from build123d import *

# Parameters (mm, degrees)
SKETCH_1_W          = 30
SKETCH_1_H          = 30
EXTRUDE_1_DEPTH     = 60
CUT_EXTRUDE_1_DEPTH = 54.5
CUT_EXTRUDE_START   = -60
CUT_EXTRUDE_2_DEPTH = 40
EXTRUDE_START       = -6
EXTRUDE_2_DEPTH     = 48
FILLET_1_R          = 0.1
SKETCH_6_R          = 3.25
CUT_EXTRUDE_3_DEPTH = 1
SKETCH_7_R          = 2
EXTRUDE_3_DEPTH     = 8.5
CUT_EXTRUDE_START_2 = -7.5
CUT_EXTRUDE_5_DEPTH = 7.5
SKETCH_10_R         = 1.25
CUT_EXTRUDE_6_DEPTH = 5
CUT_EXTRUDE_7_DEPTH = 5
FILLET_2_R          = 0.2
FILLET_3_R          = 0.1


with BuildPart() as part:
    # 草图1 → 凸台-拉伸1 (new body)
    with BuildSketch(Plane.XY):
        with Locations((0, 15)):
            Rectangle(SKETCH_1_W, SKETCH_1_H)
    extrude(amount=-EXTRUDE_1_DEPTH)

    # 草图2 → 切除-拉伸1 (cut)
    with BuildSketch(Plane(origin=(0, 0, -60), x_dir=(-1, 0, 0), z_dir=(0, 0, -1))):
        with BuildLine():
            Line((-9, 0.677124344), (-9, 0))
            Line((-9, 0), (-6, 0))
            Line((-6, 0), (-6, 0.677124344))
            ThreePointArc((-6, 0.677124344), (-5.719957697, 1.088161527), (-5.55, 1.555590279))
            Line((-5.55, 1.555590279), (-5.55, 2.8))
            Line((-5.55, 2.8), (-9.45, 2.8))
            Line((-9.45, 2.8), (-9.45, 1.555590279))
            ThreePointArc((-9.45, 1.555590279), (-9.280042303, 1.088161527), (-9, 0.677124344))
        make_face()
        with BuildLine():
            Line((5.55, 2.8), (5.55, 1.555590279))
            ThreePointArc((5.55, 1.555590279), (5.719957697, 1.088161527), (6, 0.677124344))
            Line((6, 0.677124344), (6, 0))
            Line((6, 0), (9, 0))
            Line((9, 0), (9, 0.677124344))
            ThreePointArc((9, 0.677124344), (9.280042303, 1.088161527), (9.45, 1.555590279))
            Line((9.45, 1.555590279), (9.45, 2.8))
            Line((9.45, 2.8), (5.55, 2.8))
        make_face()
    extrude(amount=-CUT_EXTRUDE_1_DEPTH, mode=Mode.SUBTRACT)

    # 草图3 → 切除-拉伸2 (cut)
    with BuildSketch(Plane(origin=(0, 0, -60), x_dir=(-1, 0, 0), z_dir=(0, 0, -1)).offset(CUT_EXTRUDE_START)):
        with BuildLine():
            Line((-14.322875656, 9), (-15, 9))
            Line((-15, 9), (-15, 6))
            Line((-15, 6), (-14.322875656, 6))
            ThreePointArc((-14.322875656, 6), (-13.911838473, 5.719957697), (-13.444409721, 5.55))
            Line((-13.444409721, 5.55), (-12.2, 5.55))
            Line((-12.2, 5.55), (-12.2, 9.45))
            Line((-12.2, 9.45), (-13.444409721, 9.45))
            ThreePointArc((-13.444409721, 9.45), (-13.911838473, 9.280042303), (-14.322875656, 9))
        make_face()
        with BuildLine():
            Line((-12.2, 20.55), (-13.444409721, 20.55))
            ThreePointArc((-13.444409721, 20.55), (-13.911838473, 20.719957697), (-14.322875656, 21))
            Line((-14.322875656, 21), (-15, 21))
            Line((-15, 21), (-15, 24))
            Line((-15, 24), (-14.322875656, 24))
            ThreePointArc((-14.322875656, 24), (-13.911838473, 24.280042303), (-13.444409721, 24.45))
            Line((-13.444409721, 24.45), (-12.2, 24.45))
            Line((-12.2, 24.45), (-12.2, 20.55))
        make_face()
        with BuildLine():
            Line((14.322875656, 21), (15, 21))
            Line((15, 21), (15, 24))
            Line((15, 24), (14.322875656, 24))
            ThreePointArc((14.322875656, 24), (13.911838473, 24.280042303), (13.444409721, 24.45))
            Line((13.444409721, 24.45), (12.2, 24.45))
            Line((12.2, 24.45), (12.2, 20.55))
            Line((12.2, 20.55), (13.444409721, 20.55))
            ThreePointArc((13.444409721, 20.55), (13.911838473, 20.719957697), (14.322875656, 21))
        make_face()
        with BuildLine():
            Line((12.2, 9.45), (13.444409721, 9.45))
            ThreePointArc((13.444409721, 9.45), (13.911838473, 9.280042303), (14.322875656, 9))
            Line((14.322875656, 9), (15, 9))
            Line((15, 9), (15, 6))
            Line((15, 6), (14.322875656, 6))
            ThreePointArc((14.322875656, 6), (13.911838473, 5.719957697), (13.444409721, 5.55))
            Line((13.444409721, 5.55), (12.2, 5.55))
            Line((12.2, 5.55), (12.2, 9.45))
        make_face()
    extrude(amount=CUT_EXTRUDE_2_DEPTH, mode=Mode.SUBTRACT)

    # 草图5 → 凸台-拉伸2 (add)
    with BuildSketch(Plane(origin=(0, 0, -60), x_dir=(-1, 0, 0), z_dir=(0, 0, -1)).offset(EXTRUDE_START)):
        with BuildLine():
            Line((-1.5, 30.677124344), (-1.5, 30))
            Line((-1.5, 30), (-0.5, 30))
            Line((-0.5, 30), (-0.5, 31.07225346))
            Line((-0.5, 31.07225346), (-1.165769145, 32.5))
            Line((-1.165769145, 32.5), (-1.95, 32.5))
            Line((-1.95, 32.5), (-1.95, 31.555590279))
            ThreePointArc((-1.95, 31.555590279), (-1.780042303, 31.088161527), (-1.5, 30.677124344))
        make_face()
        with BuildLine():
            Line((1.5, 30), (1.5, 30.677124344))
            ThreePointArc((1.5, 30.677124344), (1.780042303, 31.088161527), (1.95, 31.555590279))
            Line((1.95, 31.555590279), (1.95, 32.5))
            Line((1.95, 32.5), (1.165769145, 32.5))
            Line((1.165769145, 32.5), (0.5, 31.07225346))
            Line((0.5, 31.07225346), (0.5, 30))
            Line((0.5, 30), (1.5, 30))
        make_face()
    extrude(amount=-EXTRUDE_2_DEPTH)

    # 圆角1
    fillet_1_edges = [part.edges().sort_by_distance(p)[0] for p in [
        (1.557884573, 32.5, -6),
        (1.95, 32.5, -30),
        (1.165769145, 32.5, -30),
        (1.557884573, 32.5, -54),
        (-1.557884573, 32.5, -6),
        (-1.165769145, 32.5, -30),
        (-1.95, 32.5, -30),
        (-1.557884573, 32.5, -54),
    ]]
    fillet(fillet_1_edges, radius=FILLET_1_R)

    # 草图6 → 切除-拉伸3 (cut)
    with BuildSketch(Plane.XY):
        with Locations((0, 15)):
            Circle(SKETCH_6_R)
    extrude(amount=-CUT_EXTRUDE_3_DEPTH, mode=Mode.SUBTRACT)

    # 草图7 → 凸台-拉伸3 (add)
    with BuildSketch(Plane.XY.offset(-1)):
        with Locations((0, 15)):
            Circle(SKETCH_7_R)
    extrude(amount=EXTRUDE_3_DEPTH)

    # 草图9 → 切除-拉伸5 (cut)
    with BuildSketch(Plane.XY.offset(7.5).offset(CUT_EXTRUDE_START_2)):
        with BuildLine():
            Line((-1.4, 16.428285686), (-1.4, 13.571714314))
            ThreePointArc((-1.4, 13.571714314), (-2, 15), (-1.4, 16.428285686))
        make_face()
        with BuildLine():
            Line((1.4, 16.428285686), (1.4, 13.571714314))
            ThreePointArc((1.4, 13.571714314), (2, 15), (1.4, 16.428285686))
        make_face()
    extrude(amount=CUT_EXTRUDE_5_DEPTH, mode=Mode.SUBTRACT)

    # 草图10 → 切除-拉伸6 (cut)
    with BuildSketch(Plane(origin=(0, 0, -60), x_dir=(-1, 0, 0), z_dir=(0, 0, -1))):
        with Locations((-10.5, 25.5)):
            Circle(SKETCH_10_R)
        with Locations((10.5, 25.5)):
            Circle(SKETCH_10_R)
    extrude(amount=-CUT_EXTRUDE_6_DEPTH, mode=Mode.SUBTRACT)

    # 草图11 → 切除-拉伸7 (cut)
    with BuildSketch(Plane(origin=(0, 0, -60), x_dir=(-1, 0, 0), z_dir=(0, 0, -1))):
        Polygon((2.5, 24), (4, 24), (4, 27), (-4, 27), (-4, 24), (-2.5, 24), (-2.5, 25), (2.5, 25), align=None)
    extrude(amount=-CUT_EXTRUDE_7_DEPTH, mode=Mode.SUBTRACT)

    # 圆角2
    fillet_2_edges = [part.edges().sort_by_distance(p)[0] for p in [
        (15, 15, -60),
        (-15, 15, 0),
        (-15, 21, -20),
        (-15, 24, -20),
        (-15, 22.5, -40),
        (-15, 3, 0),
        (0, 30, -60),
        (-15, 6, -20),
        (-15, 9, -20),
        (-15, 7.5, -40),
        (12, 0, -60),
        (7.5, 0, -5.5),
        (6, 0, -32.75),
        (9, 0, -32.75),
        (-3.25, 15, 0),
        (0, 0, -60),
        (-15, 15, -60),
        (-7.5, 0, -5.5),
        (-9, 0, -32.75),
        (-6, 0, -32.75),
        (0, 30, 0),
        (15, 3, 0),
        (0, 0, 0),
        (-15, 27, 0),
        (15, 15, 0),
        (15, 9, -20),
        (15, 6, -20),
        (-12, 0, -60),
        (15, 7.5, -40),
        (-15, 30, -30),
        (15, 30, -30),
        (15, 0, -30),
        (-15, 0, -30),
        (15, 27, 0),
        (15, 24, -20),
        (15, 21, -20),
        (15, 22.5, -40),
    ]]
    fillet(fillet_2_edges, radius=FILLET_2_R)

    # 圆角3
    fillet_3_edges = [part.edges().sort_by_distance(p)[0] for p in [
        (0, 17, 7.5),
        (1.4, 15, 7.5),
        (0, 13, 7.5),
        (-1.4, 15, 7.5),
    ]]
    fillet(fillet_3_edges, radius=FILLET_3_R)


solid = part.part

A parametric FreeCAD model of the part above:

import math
import FreeCAD as App
import Part
import Sketcher
from FreeCAD import Vector
Q = App.Units.Quantity


def edges_at(feature, points):
    """Names of the edges that pass closest to the given points."""
    edges = feature.Shape.Edges
    near = lambda p: min(range(len(edges)), key=lambda i: edges[i].distToShape(Part.Vertex(*p))[0])
    return sorted({f"Edge{near(p) + 1}" for p in points})

doc = App.newDocument("Part")
body = doc.addObject("PartDesign::Body", "Body")

sketch1 = doc.addObject("Sketcher::SketchObject", "Sketch")
body.addObject(sketch1)
sketch1.AttachmentSupport = (doc.XY_Plane, [""])
sketch1.MapMode = "FlatFace"
sketch1.addGeometry([
    Part.LineSegment(Vector(-15, 30, 0), Vector(-15, 0, 0)),
    Part.LineSegment(Vector(-15, 0, 0), Vector(15, 0, 0)),
    Part.LineSegment(Vector(15, 0, 0), Vector(15, 30, 0)),
    Part.LineSegment(Vector(15, 30, 0), Vector(-15, 30, 0)),
], False)
sketch1.addConstraint([
    Sketcher.Constraint("Coincident", 0, 2, 1, 1),
    Sketcher.Constraint("Coincident", 1, 2, 2, 1),
    Sketcher.Constraint("Coincident", 2, 2, 3, 1),
    Sketcher.Constraint("Coincident", 3, 2, 0, 1),
    Sketcher.Constraint("Vertical", 0),
    Sketcher.Constraint("Horizontal", 1),
    Sketcher.Constraint("Vertical", 2),
    Sketcher.Constraint("Horizontal", 3),
    Sketcher.Constraint("Symmetric", 0, 2, 1, 2, -1, 1),
    Sketcher.Constraint("Equal", 3, 0),
    Sketcher.Constraint("DistanceX", 1, 1, 1, 2, 30.0),
])
pad1 = doc.addObject("PartDesign::Pad", "Pad")
body.addObject(pad1)
pad1.Profile = sketch1
pad1.Length = 60
pad1.Reversed = True

sketch2 = doc.addObject("Sketcher::SketchObject", "Sketch001")
body.addObject(sketch2)
sketch2.AttachmentSupport = (doc.XY_Plane, [""])
sketch2.MapMode = "FlatFace"
sketch2.AttachmentOffset = App.Placement(Vector(0, 0, -60), App.Rotation())
sketch2.addGeometry([
    Part.LineSegment(Vector(9, 0.7, 0), Vector(9, 0, 0)),
    Part.LineSegment(Vector(9, 0, 0), Vector(6, 0, 0)),
    Part.LineSegment(Vector(6, 0, 0), Vector(6, 0.7, 0)),
    Part.ArcOfCircle(Part.Circle(Vector(7.5, 2, 0), Vector(0, 0, 1), 2), math.radians(-167), math.radians(-139)),
    Part.LineSegment(Vector(5.5, 1.6, 0), Vector(5.5, 2.8, 0)),
    Part.LineSegment(Vector(5.5, 2.8, 0), Vector(9.4, 2.8, 0)),
    Part.LineSegment(Vector(9.4, 2.8, 0), Vector(9.4, 1.6, 0)),
    Part.ArcOfCircle(Part.Circle(Vector(7.5, 2, 0), Vector(0, 0, 1), 2), math.radians(-41), math.radians(-13)),
    Part.LineSegment(Vector(-5.5, 2.8, 0), Vector(-5.5, 1.6, 0)),
    Part.ArcOfCircle(Part.Circle(Vector(-7.5, 2, 0), Vector(0, 0, 1), 2), math.radians(-41), math.radians(-13)),
    Part.LineSegment(Vector(-6, 0.7, 0), Vector(-6, 0, 0)),
    Part.LineSegment(Vector(-6, 0, 0), Vector(-9, 0, 0)),
    Part.LineSegment(Vector(-9, 0, 0), Vector(-9, 0.7, 0)),
    Part.ArcOfCircle(Part.Circle(Vector(-7.5, 2, 0), Vector(0, 0, 1), 2), math.radians(-167), math.radians(-139)),
    Part.LineSegment(Vector(-9.4, 1.6, 0), Vector(-9.4, 2.8, 0)),
    Part.LineSegment(Vector(-9.4, 2.8, 0), Vector(-5.5, 2.8, 0)),
], False)
sketch2.addConstraint([
    Sketcher.Constraint("Coincident", 0, 2, 1, 1),
    Sketcher.Constraint("Coincident", 1, 2, 2, 1),
    Sketcher.Constraint("Coincident", 2, 2, 3, 2),
    Sketcher.Constraint("Coincident", 3, 1, 4, 1),
    Sketcher.Constraint("Coincident", 4, 2, 5, 1),
    Sketcher.Constraint("Coincident", 5, 2, 6, 1),
    Sketcher.Constraint("Coincident", 6, 2, 7, 2),
    Sketcher.Constraint("Coincident", 7, 1, 0, 1),
    Sketcher.Constraint("Coincident", 8, 2, 9, 2),
    Sketcher.Constraint("Coincident", 9, 1, 10, 1),
    Sketcher.Constraint("Coincident", 10, 2, 11, 1),
    Sketcher.Constraint("Coincident", 11, 2, 12, 1),
    Sketcher.Constraint("Coincident", 12, 2, 13, 2),
    Sketcher.Constraint("Coincident", 13, 1, 14, 1),
    Sketcher.Constraint("Coincident", 14, 2, 15, 1),
    Sketcher.Constraint("Coincident", 15, 2, 8, 1),
    Sketcher.Constraint("Vertical", 0),
    Sketcher.Constraint("Horizontal", 1),
    Sketcher.Constraint("Vertical", 2),
    Sketcher.Constraint("Vertical", 4),
    Sketcher.Constraint("Horizontal", 5),
    Sketcher.Constraint("Vertical", 6),
    Sketcher.Constraint("Vertical", 8),
    Sketcher.Constraint("Vertical", 10),
    Sketcher.Constraint("Horizontal", 11),
    Sketcher.Constraint("Vertical", 12),
    Sketcher.Constraint("Vertical", 14),
    Sketcher.Constraint("Horizontal", 15),
    Sketcher.Constraint("Coincident", 7, 3, 3, 3),
    Sketcher.Constraint("Coincident", 13, 3, 9, 3),
    Sketcher.Constraint("Equal", 3, 7),
    Sketcher.Constraint("Equal", 7, 9),
    Sketcher.Constraint("Equal", 9, 13),
    Sketcher.Constraint("Symmetric", 1, 2, 10, 2, -1, 1),
    Sketcher.Constraint("Symmetric", 3, 3, 9, 3, -2),
    Sketcher.Constraint("Symmetric", 0, 2, 11, 2, -2),
    Sketcher.Constraint("Symmetric", 5, 2, 14, 2, -2),
    Sketcher.Constraint("Horizontal", 3, 1, 6, 2),
    Sketcher.Constraint("Horizontal", 2, 2, 7, 1),
    Sketcher.Constraint("Horizontal", 6, 2, 8, 2),
    Sketcher.Constraint("Radius", 3, 2.0),
    Sketcher.Constraint("DistanceX", 1, 2, 1, 1, 3.0),
    Sketcher.Constraint("DistanceX", 5, 1, 5, 2, 3.9),
    Sketcher.Constraint("DistanceY", -1, 1, 3, 3, 2.0),
    Sketcher.Constraint("DistanceX", -1, 1, 0, 2, 9.0),
    Sketcher.Constraint("DistanceY", -1, 1, 4, 2, 2.8),
])
pocket1 = doc.addObject("PartDesign::Pocket", "Pocket")
body.addObject(pocket1)
pocket1.Profile = sketch2
pocket1.Length = 54.5
pocket1.Reversed = True

sketch3 = doc.addObject("Sketcher::SketchObject", "Sketch002")
body.addObject(sketch3)
sketch3.AttachmentSupport = (doc.XY_Plane, [""])
sketch3.MapMode = "FlatFace"
sketch3.addGeometry([
    Part.LineSegment(Vector(14.3, 9, 0), Vector(15, 9, 0)),
    Part.LineSegment(Vector(15, 9, 0), Vector(15, 6, 0)),
    Part.LineSegment(Vector(15, 6, 0), Vector(14.3, 6, 0)),
    Part.ArcOfCircle(Part.Circle(Vector(13, 7.5, 0), Vector(0, 0, 1), 2), math.radians(-77), math.radians(-49)),
    Part.LineSegment(Vector(13.4, 5.5, 0), Vector(12.2, 5.5, 0)),
    Part.LineSegment(Vector(12.2, 5.5, 0), Vector(12.2, 9.4, 0)),
    Part.LineSegment(Vector(12.2, 9.4, 0), Vector(13.4, 9.4, 0)),
    Part.ArcOfCircle(Part.Circle(Vector(13, 7.5, 0), Vector(0, 0, 1), 2), math.radians(49), math.radians(77)),
    Part.LineSegment(Vector(13.4, 20.6, 0), Vector(12.2, 20.6, 0)),
    Part.LineSegment(Vector(12.2, 20.6, 0), Vector(12.2, 24.4, 0)),
    Part.LineSegment(Vector(12.2, 24.4, 0), Vector(13.4, 24.4, 0)),
    Part.ArcOfCircle(Part.Circle(Vector(13, 22.5, 0), Vector(0, 0, 1), 2), math.radians(49), math.radians(77)),
    Part.LineSegment(Vector(14.3, 24, 0), Vector(15, 24, 0)),
    Part.LineSegment(Vector(15, 24, 0), Vector(15, 21, 0)),
    Part.LineSegment(Vector(15, 21, 0), Vector(14.3, 21, 0)),
    Part.ArcOfCircle(Part.Circle(Vector(13, 22.5, 0), Vector(0, 0, 1), 2), math.radians(-77), math.radians(-49)),
    Part.LineSegment(Vector(-14.3, 21, 0), Vector(-15, 21, 0)),
    Part.LineSegment(Vector(-15, 21, 0), Vector(-15, 24, 0)),
    Part.LineSegment(Vector(-15, 24, 0), Vector(-14.3, 24, 0)),
    Part.ArcOfCircle(Part.Circle(Vector(-13, 22.5, 0), Vector(0, 0, 1), 2), math.radians(103), math.radians(131)),
    Part.LineSegment(Vector(-13.4, 24.4, 0), Vector(-12.2, 24.4, 0)),
    Part.LineSegment(Vector(-12.2, 24.4, 0), Vector(-12.2, 20.6, 0)),
    Part.LineSegment(Vector(-12.2, 20.6, 0), Vector(-13.4, 20.6, 0)),
    Part.ArcOfCircle(Part.Circle(Vector(-13, 22.5, 0), Vector(0, 0, 1), 2), math.radians(-131), math.radians(-103)),
    Part.LineSegment(Vector(-13.4, 9.4, 0), Vector(-12.2, 9.4, 0)),
    Part.LineSegment(Vector(-12.2, 9.4, 0), Vector(-12.2, 5.5, 0)),
    Part.LineSegment(Vector(-12.2, 5.5, 0), Vector(-13.4, 5.5, 0)),
    Part.ArcOfCircle(Part.Circle(Vector(-13, 7.5, 0), Vector(0, 0, 1), 2), math.radians(-131), math.radians(-103)),
    Part.LineSegment(Vector(-14.3, 6, 0), Vector(-15, 6, 0)),
    Part.LineSegment(Vector(-15, 6, 0), Vector(-15, 9, 0)),
    Part.LineSegment(Vector(-15, 9, 0), Vector(-14.3, 9, 0)),
    Part.ArcOfCircle(Part.Circle(Vector(-13, 7.5, 0), Vector(0, 0, 1), 2), math.radians(103), math.radians(131)),
], False)
sketch3.addConstraint([
    Sketcher.Constraint("Coincident", 0, 2, 1, 1),
    Sketcher.Constraint("Coincident", 1, 2, 2, 1),
    Sketcher.Constraint("Coincident", 2, 2, 3, 2),
    Sketcher.Constraint("Coincident", 3, 1, 4, 1),
    Sketcher.Constraint("Coincident", 4, 2, 5, 1),
    Sketcher.Constraint("Coincident", 5, 2, 6, 1),
    Sketcher.Constraint("Coincident", 6, 2, 7, 2),
    Sketcher.Constraint("Coincident", 7, 1, 0, 1),
    Sketcher.Constraint("Coincident", 8, 2, 9, 1),
    Sketcher.Constraint("Coincident", 9, 2, 10, 1),
    Sketcher.Constraint("Coincident", 10, 2, 11, 2),
    Sketcher.Constraint("Coincident", 11, 1, 12, 1),
    Sketcher.Constraint("Coincident", 12, 2, 13, 1),
    Sketcher.Constraint("Coincident", 13, 2, 14, 1),
    Sketcher.Constraint("Coincident", 14, 2, 15, 2),
    Sketcher.Constraint("Coincident", 15, 1, 8, 1),
    Sketcher.Constraint("Coincident", 16, 2, 17, 1),
    Sketcher.Constraint("Coincident", 17, 2, 18, 1),
    Sketcher.Constraint("Coincident", 18, 2, 19, 2),
    Sketcher.Constraint("Coincident", 19, 1, 20, 1),
    Sketcher.Constraint("Coincident", 20, 2, 21, 1),
    Sketcher.Constraint("Coincident", 21, 2, 22, 1),
    Sketcher.Constraint("Coincident", 22, 2, 23, 2),
    Sketcher.Constraint("Coincident", 23, 1, 16, 1),
    Sketcher.Constraint("Coincident", 24, 2, 25, 1),
    Sketcher.Constraint("Coincident", 25, 2, 26, 1),
    Sketcher.Constraint("Coincident", 26, 2, 27, 2),
    Sketcher.Constraint("Coincident", 27, 1, 28, 1),
    Sketcher.Constraint("Coincident", 28, 2, 29, 1),
    Sketcher.Constraint("Coincident", 29, 2, 30, 1),
    Sketcher.Constraint("Coincident", 30, 2, 31, 2),
    Sketcher.Constraint("Coincident", 31, 1, 24, 1),
    Sketcher.Constraint("Horizontal", 0),
    Sketcher.Constraint("Vertical", 1),
    Sketcher.Constraint("Horizontal", 2),
    Sketcher.Constraint("Horizontal", 4),
    Sketcher.Constraint("Vertical", 5),
    Sketcher.Constraint("Horizontal", 6),
    Sketcher.Constraint("Horizontal", 8),
    Sketcher.Constraint("Vertical", 9),
    Sketcher.Constraint("Horizontal", 10),
    Sketcher.Constraint("Horizontal", 12),
    Sketcher.Constraint("Vertical", 13),
    Sketcher.Constraint("Horizontal", 14),
    Sketcher.Constraint("Horizontal", 16),
    Sketcher.Constraint("Vertical", 17),
    Sketcher.Constraint("Horizontal", 18),
    Sketcher.Constraint("Horizontal", 20),
    Sketcher.Constraint("Vertical", 21),
    Sketcher.Constraint("Horizontal", 22),
    Sketcher.Constraint("Horizontal", 24),
    Sketcher.Constraint("Vertical", 25),
    Sketcher.Constraint("Horizontal", 26),
    Sketcher.Constraint("Horizontal", 28),
    Sketcher.Constraint("Vertical", 29),
    Sketcher.Constraint("Horizontal", 30),
    Sketcher.Constraint("Coincident", 7, 3, 3, 3),
    Sketcher.Constraint("Coincident", 15, 3, 11, 3),
    Sketcher.Constraint("Coincident", 23, 3, 19, 3),
    Sketcher.Constraint("Coincident", 31, 3, 27, 3),
    Sketcher.Constraint("Equal", 3, 7),
    Sketcher.Constraint("Equal", 7, 11),
    Sketcher.Constraint("Equal", 11, 15),
    Sketcher.Constraint("Equal", 15, 19),
    Sketcher.Constraint("Equal", 19, 23),
    Sketcher.Constraint("Equal", 23, 27),
    Sketcher.Constraint("Equal", 27, 31),
    Sketcher.Constraint("Symmetric", 11, 3, 19, 3, -2),
    Sketcher.Constraint("Symmetric", 3, 3, 27, 3, -2),
    Sketcher.Constraint("Symmetric", 13, 2, 16, 2, -2),
    Sketcher.Constraint("Symmetric", 9, 2, 20, 2, -2),
    Sketcher.Constraint("Symmetric", 5, 2, 24, 2, -2),
    Sketcher.Constraint("Symmetric", 1, 2, 28, 2, -2),
    Sketcher.Constraint("Horizontal", 12, 2, 17, 2),
    Sketcher.Constraint("Horizontal", 15, 1, 21, 2),
    Sketcher.Constraint("Horizontal", 4, 2, 25, 2),
    Sketcher.Constraint("Horizontal", 7, 1, 29, 2),
    Sketcher.Constraint("Vertical", 7, 3, 11, 3),
    Sketcher.Constraint("Vertical", 3, 1, 6, 2),
    Sketcher.Constraint("Vertical", 2, 2, 7, 1),
    Sketcher.Constraint("Vertical", 5, 2, 8, 2),
    Sketcher.Constraint("Vertical", 6, 2, 10, 2),
    Sketcher.Constraint("Vertical", 7, 1, 11, 1),
    Sketcher.Constraint("Vertical", 1, 2, 12, 2),
    Sketcher.Constraint("Vertical", 11, 1, 14, 2),
    Sketcher.Constraint("Vertical", 10, 2, 15, 1),
    Sketcher.Constraint("Radius", 3, 2.0),
    Sketcher.Constraint("DistanceY", 1, 2, 1, 1, 3.0),
    Sketcher.Constraint("DistanceY", 5, 1, 5, 2, 3.9),
    Sketcher.Constraint("DistanceX", -1, 1, 3, 3, 13.0),
    Sketcher.Constraint("DistanceX", -1, 1, 0, 2, 15.0),
    Sketcher.Constraint("DistanceY", -1, 1, 0, 2, 9.0),
    Sketcher.Constraint("DistanceY", -1, 1, 11, 1, 24.0),
    Sketcher.Constraint("DistanceX", -1, 1, 4, 2, 12.2),
])
pocket2 = doc.addObject("PartDesign::Pocket", "Pocket001")
body.addObject(pocket2)
pocket2.Profile = sketch3
pocket2.Length = 40

sketch4 = doc.addObject("Sketcher::SketchObject", "Sketch003")
body.addObject(sketch4)
sketch4.AttachmentSupport = (doc.XY_Plane, [""])
sketch4.MapMode = "FlatFace"
sketch4.AttachmentOffset = App.Placement(Vector(0, 0, -54), App.Rotation())
sketch4.addGeometry([
    Part.LineSegment(Vector(1.5, 30.7, 0), Vector(1.5, 30, 0)),
    Part.LineSegment(Vector(1.5, 30, 0), Vector(0.5, 30, 0)),
    Part.LineSegment(Vector(0.5, 30, 0), Vector(0.5, 31.1, 0)),
    Part.LineSegment(Vector(0.5, 31.1, 0), Vector(1.2, 32.5, 0)),
    Part.LineSegment(Vector(1.2, 32.5, 0), Vector(1.9, 32.5, 0)),
    Part.LineSegment(Vector(1.9, 32.5, 0), Vector(1.9, 31.6, 0)),
    Part.ArcOfCircle(Part.Circle(Vector(0, 32, 0), Vector(0, 0, 1), 2), math.radians(-41), math.radians(-13)),
    Part.LineSegment(Vector(-1.5, 30, 0), Vector(-1.5, 30.7, 0)),
    Part.ArcOfCircle(Part.Circle(Vector(0, 32, 0), Vector(0, 0, 1), 2), math.radians(-167), math.radians(-139)),
    Part.LineSegment(Vector(-1.9, 31.6, 0), Vector(-1.9, 32.5, 0)),
    Part.LineSegment(Vector(-1.9, 32.5, 0), Vector(-1.2, 32.5, 0)),
    Part.LineSegment(Vector(-1.2, 32.5, 0), Vector(-0.5, 31.1, 0)),
    Part.LineSegment(Vector(-0.5, 31.1, 0), Vector(-0.5, 30, 0)),
    Part.LineSegment(Vector(-0.5, 30, 0), Vector(-1.5, 30, 0)),
], False)
sketch4.addConstraint([
    Sketcher.Constraint("Coincident", 0, 2, 1, 1),
    Sketcher.Constraint("Coincident", 1, 2, 2, 1),
    Sketcher.Constraint("Coincident", 2, 2, 3, 1),
    Sketcher.Constraint("Coincident", 3, 2, 4, 1),
    Sketcher.Constraint("Coincident", 4, 2, 5, 1),
    Sketcher.Constraint("Coincident", 5, 2, 6, 2),
    Sketcher.Constraint("Coincident", 6, 1, 0, 1),
    Sketcher.Constraint("Coincident", 7, 2, 8, 2),
    Sketcher.Constraint("Coincident", 8, 1, 9, 1),
    Sketcher.Constraint("Coincident", 9, 2, 10, 1),
    Sketcher.Constraint("Coincident", 10, 2, 11, 1),
    Sketcher.Constraint("Coincident", 11, 2, 12, 1),
    Sketcher.Constraint("Coincident", 12, 2, 13, 1),
    Sketcher.Constraint("Coincident", 13, 2, 7, 1),
    Sketcher.Constraint("Vertical", 0),
    Sketcher.Constraint("Horizontal", 1),
    Sketcher.Constraint("Vertical", 2),
    Sketcher.Constraint("Horizontal", 4),
    Sketcher.Constraint("Vertical", 5),
    Sketcher.Constraint("Vertical", 7),
    Sketcher.Constraint("Vertical", 9),
    Sketcher.Constraint("Horizontal", 10),
    Sketcher.Constraint("Vertical", 12),
    Sketcher.Constraint("Horizontal", 13),
    Sketcher.Constraint("Coincident", 8, 3, 6, 3),
    Sketcher.Constraint("Equal", 6, 8),
    Sketcher.Constraint("Symmetric", 6, 1, 7, 2, -2),
    Sketcher.Constraint("Symmetric", 4, 2, 9, 2, -2),
    Sketcher.Constraint("Symmetric", 2, 2, 11, 2, -2),
    Sketcher.Constraint("Horizontal", 1, 2, 12, 2),
    Sketcher.Constraint("Equal", 4, 10),
    Sketcher.Constraint("Radius", 6, 2.0),
    Sketcher.Constraint("DistanceX", 1, 2, 1, 1, 1.0),
    Sketcher.Constraint("Angle", 3, Q("65 deg")),
    Sketcher.Constraint("DistanceY", -1, 1, 6, 3, 32.0),
    Sketcher.Constraint("DistanceY", -1, 1, 0, 2, 30.0),
    Sketcher.Constraint("DistanceX", 7, 2, 2, 2, 2.0),
    Sketcher.Constraint("DistanceY", -1, 1, 3, 2, 32.5),
    Sketcher.Constraint("DistanceX", -1, 1, 4, 2, 1.95),
    Sketcher.Constraint("DistanceX", 4, 1, 4, 2, 0.784231),
])
pad2 = doc.addObject("PartDesign::Pad", "Pad001")
body.addObject(pad2)
pad2.Profile = sketch4
pad2.Length = 48
doc.recompute()

fillet = doc.addObject("PartDesign::Fillet", "Fillet")
body.addObject(fillet)
fillet.Base = (pad2, edges_at(pad2, [
    (1.558, 32.5, -6),
    (1.95, 32.5, -30),
    (1.166, 32.5, -30),
    (1.558, 32.5, -54),
    (-1.558, 32.5, -6),
    (-1.166, 32.5, -30),
    (-1.95, 32.5, -30),
    (-1.558, 32.5, -54),
]))
fillet.Radius = 0.1

sketch5 = doc.addObject("Sketcher::SketchObject", "Sketch004")
body.addObject(sketch5)
sketch5.AttachmentSupport = (doc.XY_Plane, [""])
sketch5.MapMode = "FlatFace"
sketch5.addGeometry(Part.Circle(Vector(0, 15, 0), Vector(0, 0, 1), 3.2), False)
sketch5.addConstraint([
    Sketcher.Constraint("PointOnObject", 0, 3, -2),
    Sketcher.Constraint("Diameter", 0, 6.5),
    Sketcher.Constraint("DistanceY", -1, 1, 0, 3, 15.0),
])
pocket3 = doc.addObject("PartDesign::Pocket", "Pocket002")
body.addObject(pocket3)
pocket3.Profile = sketch5
pocket3.Length = 1

sketch6 = doc.addObject("Sketcher::SketchObject", "Sketch005")
body.addObject(sketch6)
sketch6.AttachmentSupport = (doc.XY_Plane, [""])
sketch6.MapMode = "FlatFace"
sketch6.AttachmentOffset = App.Placement(Vector(0, 0, -1), App.Rotation())
sketch6.addGeometry(Part.Circle(Vector(0, 15, 0), Vector(0, 0, 1), 2), False)
sketch6.addConstraint([
    Sketcher.Constraint("PointOnObject", 0, 3, -2),
    Sketcher.Constraint("Diameter", 0, 4.0),
    Sketcher.Constraint("DistanceY", -1, 1, 0, 3, 15.0),
])
pad3 = doc.addObject("PartDesign::Pad", "Pad002")
body.addObject(pad3)
pad3.Profile = sketch6
pad3.Length = 8.5

sketch7 = doc.addObject("Sketcher::SketchObject", "Sketch006")
body.addObject(sketch7)
sketch7.AttachmentSupport = (doc.XY_Plane, [""])
sketch7.MapMode = "FlatFace"
sketch7.addGeometry([
    Part.LineSegment(Vector(-1.4, 13.6, 0), Vector(-1.4, 16.4, 0)),
    Part.ArcOfCircle(Part.Circle(Vector(0, 15, 0), Vector(0, 0, 1), 2), math.radians(134), math.radians(226)),
    Part.LineSegment(Vector(1.4, 16.4, 0), Vector(1.4, 13.6, 0)),
    Part.ArcOfCircle(Part.Circle(Vector(0, 15, 0), Vector(0, 0, 1), 2), math.radians(-46), math.radians(46)),
], False)
sketch7.addConstraint([
    Sketcher.Constraint("Coincident", 0, 1, 1, 2),
    Sketcher.Constraint("Coincident", 1, 1, 0, 2),
    Sketcher.Constraint("Coincident", 2, 1, 3, 2),
    Sketcher.Constraint("Coincident", 3, 1, 2, 2),
    Sketcher.Constraint("Vertical", 0),
    Sketcher.Constraint("Vertical", 2),
    Sketcher.Constraint("Coincident", 3, 3, 1, 3),
    Sketcher.Constraint("Equal", 1, 3),
    Sketcher.Constraint("Symmetric", 1, 1, 2, 1, -2),
    Sketcher.Constraint("Radius", 1, 2.0),
    Sketcher.Constraint("DistanceY", -1, 1, 1, 3, 15.0),
    Sketcher.Constraint("DistanceX", 0, 1, -1, 1, 1.4),
])
pocket4 = doc.addObject("PartDesign::Pocket", "Pocket003")
body.addObject(pocket4)
pocket4.Profile = sketch7
pocket4.Length = 7.5
pocket4.Reversed = True

sketch8 = doc.addObject("Sketcher::SketchObject", "Sketch007")
body.addObject(sketch8)
sketch8.AttachmentSupport = (doc.XY_Plane, [""])
sketch8.MapMode = "FlatFace"
sketch8.AttachmentOffset = App.Placement(Vector(0, 0, -60), App.Rotation())
sketch8.addGeometry([
    Part.Circle(Vector(10.5, 25.5, 0), Vector(0, 0, 1), 1.2),
    Part.Circle(Vector(-10.5, 25.5, 0), Vector(0, 0, 1), 1.2),
], False)
sketch8.addConstraint([
    Sketcher.Constraint("Equal", 0, 1),
    Sketcher.Constraint("Symmetric", 0, 3, 1, 3, -2),
    Sketcher.Constraint("Diameter", 0, 2.5),
    Sketcher.Constraint("DistanceX", 1, 3, 0, 3, 21.0),
    Sketcher.Constraint("DistanceY", -1, 1, 0, 3, 25.5),
])
pocket5 = doc.addObject("PartDesign::Pocket", "Pocket004")
body.addObject(pocket5)
pocket5.Profile = sketch8
pocket5.Length = 5
pocket5.Reversed = True

sketch9 = doc.addObject("Sketcher::SketchObject", "Sketch008")
body.addObject(sketch9)
sketch9.AttachmentSupport = (doc.XY_Plane, [""])
sketch9.MapMode = "FlatFace"
sketch9.AttachmentOffset = App.Placement(Vector(0, 0, -60), App.Rotation())
sketch9.addGeometry([
    Part.LineSegment(Vector(-2.5, 24, 0), Vector(-4, 24, 0)),
    Part.LineSegment(Vector(-4, 24, 0), Vector(-4, 27, 0)),
    Part.LineSegment(Vector(-4, 27, 0), Vector(4, 27, 0)),
    Part.LineSegment(Vector(4, 27, 0), Vector(4, 24, 0)),
    Part.LineSegment(Vector(4, 24, 0), Vector(2.5, 24, 0)),
    Part.LineSegment(Vector(2.5, 24, 0), Vector(2.5, 25, 0)),
    Part.LineSegment(Vector(2.5, 25, 0), Vector(-2.5, 25, 0)),
    Part.LineSegment(Vector(-2.5, 25, 0), Vector(-2.5, 24, 0)),
], False)
sketch9.addConstraint([
    Sketcher.Constraint("Coincident", 0, 2, 1, 1),
    Sketcher.Constraint("Coincident", 1, 2, 2, 1),
    Sketcher.Constraint("Coincident", 2, 2, 3, 1),
    Sketcher.Constraint("Coincident", 3, 2, 4, 1),
    Sketcher.Constraint("Coincident", 4, 2, 5, 1),
    Sketcher.Constraint("Coincident", 5, 2, 6, 1),
    Sketcher.Constraint("Coincident", 6, 2, 7, 1),
    Sketcher.Constraint("Coincident", 7, 2, 0, 1),
    Sketcher.Constraint("Horizontal", 0),
    Sketcher.Constraint("Vertical", 1),
    Sketcher.Constraint("Horizontal", 2),
    Sketcher.Constraint("Vertical", 3),
    Sketcher.Constraint("Horizontal", 4),
    Sketcher.Constraint("Vertical", 5),
    Sketcher.Constraint("Horizontal", 6),
    Sketcher.Constraint("Vertical", 7),
    Sketcher.Constraint("Symmetric", 0, 2, 3, 2, -2),
    Sketcher.Constraint("Equal", 0, 4),
    Sketcher.Constraint("DistanceX", 2, 1, 2, 2, 8.0),
    Sketcher.Constraint("DistanceX", 6, 2, 6, 1, 5.0),
    Sketcher.Constraint("DistanceY", 1, 1, 1, 2, 3.0),
    Sketcher.Constraint("DistanceY", 5, 1, 5, 2, 1.0),
    Sketcher.Constraint("DistanceY", -1, 1, 0, 2, 24.0),
])
pocket6 = doc.addObject("PartDesign::Pocket", "Pocket005")
body.addObject(pocket6)
pocket6.Profile = sketch9
pocket6.Length = 5
pocket6.Reversed = True
doc.recompute()

fillet2 = doc.addObject("PartDesign::Fillet", "Fillet001")
body.addObject(fillet2)
fillet2.Base = (pocket6, edges_at(pocket6, [
    (15, 15, -60),
    (-15, 15, 0),
    (-15, 21, -20),
    (-15, 24, -20),
    (-15, 22.5, -40),
    (-15, 3, 0),
    (0, 30, -60),
    (-15, 6, -20),
    (-15, 9, -20),
    (-15, 7.5, -40),
    (12, 0, -60),
    (7.5, 0, -5.5),
    (6, 0, -32.75),
    (9, 0, -32.75),
    (-3.25, 15, 0),
    (0, 0, -60),
    (-15, 15, -60),
    (-7.5, 0, -5.5),
    (-9, 0, -32.75),
    (-6, 0, -32.75),
    (0, 30, 0),
    (15, 3, 0),
    (0, 0, 0),
    (-15, 27, 0),
    (15, 15, 0),
    (15, 9, -20),
    (15, 6, -20),
    (-12, 0, -60),
    (15, 7.5, -40),
    (-15, 30, -30),
    (15, 30, -30),
    (15, 0, -30),
    (-15, 0, -30),
    (15, 27, 0),
    (15, 24, -20),
    (15, 21, -20),
    (15, 22.5, -40),
]))
fillet2.Radius = 0.2
doc.recompute()

fillet3 = doc.addObject("PartDesign::Fillet", "Fillet002")
body.addObject(fillet3)
fillet3.Base = (fillet2, edges_at(fillet2, [
    (0, 17, 7.5),
    (1.4, 15, 7.5),
    (0, 13, 7.5),
    (-1.4, 15, 7.5),
]))
fillet3.Radius = 0.1

doc.recompute()
